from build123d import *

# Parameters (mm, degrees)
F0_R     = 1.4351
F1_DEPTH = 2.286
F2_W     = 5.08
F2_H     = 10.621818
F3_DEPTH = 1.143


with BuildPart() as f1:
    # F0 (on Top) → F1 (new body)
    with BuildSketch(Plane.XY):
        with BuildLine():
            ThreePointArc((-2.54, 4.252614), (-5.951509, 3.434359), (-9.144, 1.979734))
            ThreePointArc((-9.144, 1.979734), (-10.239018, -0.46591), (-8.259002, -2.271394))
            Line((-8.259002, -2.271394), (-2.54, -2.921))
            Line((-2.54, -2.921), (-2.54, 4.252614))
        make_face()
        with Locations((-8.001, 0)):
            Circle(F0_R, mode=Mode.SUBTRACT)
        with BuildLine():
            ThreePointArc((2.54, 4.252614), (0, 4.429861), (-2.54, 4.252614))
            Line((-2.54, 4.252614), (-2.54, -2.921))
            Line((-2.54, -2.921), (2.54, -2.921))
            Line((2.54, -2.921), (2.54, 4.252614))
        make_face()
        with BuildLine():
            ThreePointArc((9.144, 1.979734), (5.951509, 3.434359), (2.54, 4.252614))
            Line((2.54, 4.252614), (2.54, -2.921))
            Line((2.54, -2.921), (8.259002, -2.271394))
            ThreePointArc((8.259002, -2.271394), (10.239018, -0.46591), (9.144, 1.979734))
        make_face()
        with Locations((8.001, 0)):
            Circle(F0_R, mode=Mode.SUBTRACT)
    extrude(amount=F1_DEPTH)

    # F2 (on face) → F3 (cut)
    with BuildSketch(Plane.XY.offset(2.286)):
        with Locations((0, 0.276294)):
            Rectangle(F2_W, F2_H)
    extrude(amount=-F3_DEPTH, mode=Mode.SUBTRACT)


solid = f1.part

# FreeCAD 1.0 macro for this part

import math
import FreeCAD as App
import Part
import Sketcher
Q = App.Units.Quantity

doc = App.newDocument("Part")
params = doc.addObject("Spreadsheet::Sheet", "Params")
for row, (alias, value) in enumerate([
    ("sketch1_radius", "0.09 in"),
    ("sketch1_radius2", "0.09 in"),
    ("sketch1_diameter", "0.113 in"),
    ("sketch1_diameter2", "0.113 in"),
    ("sketch1_width", "0.2 in"),
    ("pad1_length", "0.09 in"),
    ("sketch2_width", "0.2 in"),
    ("pocket1_length", "0.045 in"),
], start=1):
    params.set(f"A{row}", alias)
    params.set(f"B{row}", "=" + value)
    params.setAlias(f"B{row}", alias)

body = doc.addObject("PartDesign::Body", "Body")

sketch1 = doc.addObject("Sketcher::SketchObject", "Sketch")
body.addObject(sketch1)
sketch1.AttachmentSupport = (doc.XY_Plane, [""])
sketch1.MapMode = "FlatFace"
sketch1.addGeometry(Part.ArcOfCircle(Part.Circle(App.Vector(0.00001, -13.858166, 0), App.Vector(0, 0, 1), 18.288029), math.radians(97.983577), math.radians(119.999986)), False)
sketch1.addGeometry(Part.ArcOfCircle(Part.Circle(App.Vector(-8.001, 0, 0), App.Vector(0, 0, 1), 2.286), math.radians(119.999994), math.radians(263.519697)), False)
sketch1.addGeometry(Part.LineSegment(App.Vector(-8.259002, -2.271394, 0), App.Vector(-2.54, -2.921, 0)), False)
sketch1.addGeometry(Part.LineSegment(App.Vector(-2.54, -2.921, 0), App.Vector(2.54, -2.921, 0)), False)
sketch1.addGeometry(Part.LineSegment(App.Vector(2.54, -2.921, 0), App.Vector(8.259002, -2.271394, 0)), False)
sketch1.addGeometry(Part.ArcOfCircle(Part.Circle(App.Vector(8.001, 0, 0), App.Vector(0, 0, 1), 2.286), math.radians(-83.519697), math.radians(60.000006)), False)
sketch1.addGeometry(Part.ArcOfCircle(Part.Circle(App.Vector(-0.00001, -13.858166, 0), App.Vector(0, 0, 1), 18.288029), math.radians(60.000014), math.radians(82.016423)), False)
sketch1.addGeometry(Part.ArcOfCircle(Part.Circle(App.Vector(0, -13.858224, 0), App.Vector(0, 0, 1), 18.288085), math.radians(82.016481), math.radians(97.983519)), False)
sketch1.addGeometry(Part.Circle(App.Vector(-8.001, 0, 0), App.Vector(0, 0, 1), 1.4351), False)
sketch1.addGeometry(Part.Circle(App.Vector(8.001, 0, 0), App.Vector(0, 0, 1), 1.4351), False)
sketch1.addConstraint(Sketcher.Constraint("Coincident", 0, 2, 1, 1))
sketch1.addConstraint(Sketcher.Constraint("Coincident", 1, 2, 2, 1))
sketch1.addConstraint(Sketcher.Constraint("Coincident", 2, 2, 3, 1))
sketch1.addConstraint(Sketcher.Constraint("Coincident", 3, 2, 4, 1))
sketch1.addConstraint(Sketcher.Constraint("Coincident", 4, 2, 5, 1))
sketch1.addConstraint(Sketcher.Constraint("Coincident", 5, 2, 6, 1))
sketch1.addConstraint(Sketcher.Constraint("Coincident", 6, 2, 7, 1))
sketch1.addConstraint(Sketcher.Constraint("Coincident", 7, 2, 0, 1))
sketch1.addConstraint(Sketcher.Constraint("Horizontal", 3))
sketch1.addConstraint(Sketcher.Constraint("Coincident", 8, 3, 1, 3))
sketch1.addConstraint(Sketcher.Constraint("Coincident", 9, 3, 5, 3))
sketch1.addConstraint(Sketcher.Constraint("PointOnObject", 1, 3, -1))
sketch1.addConstraint(Sketcher.Constraint("PointOnObject", 5, 3, -1))
sketch1.addConstraint(Sketcher.Constraint("PointOnObject", 7, 3, -2))
sketch1.addConstraint(Sketcher.Constraint("Radius", 1, Q("0.09 in")))
sketch1.addConstraint(Sketcher.Constraint("Radius", 5, Q("0.09 in")))
sketch1.addConstraint(Sketcher.Constraint("Diameter", 8, Q("0.113 in")))
sketch1.addConstraint(Sketcher.Constraint("Diameter", 9, Q("0.113 in")))
sketch1.addConstraint(Sketcher.Constraint("DistanceX", 3, 1, 3, 2, Q("0.2 in")))
sketch1.addConstraint(Sketcher.Constraint("DistanceX", 2, 2, -1, 1, Q("0.1 in")))
sketch1.addConstraint(Sketcher.Constraint("DistanceX", -1, 1, 6, 2, Q("0.1 in")))
sketch1.addConstraint(Sketcher.Constraint("DistanceX", 7, 2, -1, 1, Q("0.1 in")))
sketch1.addConstraint(Sketcher.Constraint("DistanceX", 0, 2, -1, 1, Q("0.36 in")))
sketch1.addConstraint(Sketcher.Constraint("DistanceX", -1, 1, 5, 2, Q("0.36 in")))
sketch1.addConstraint(Sketcher.Constraint("DistanceX", 1, 3, 5, 3, Q("0.63 in")))
sketch1.addConstraint(Sketcher.Constraint("DistanceX", 1, 3, -1, 1, Q("0.315 in")))
sketch1.addConstraint(Sketcher.Constraint("DistanceY", 2, 2, -1, 1, Q("0.115 in")))
sketch1.addConstraint(Sketcher.Constraint("Radius", 0, Q("18.288029 mm")))
sketch1.addConstraint(Sketcher.Constraint("Radius", 6, Q("18.288029 mm")))
sketch1.addConstraint(Sketcher.Constraint("Radius", 7, Q("18.288085 mm")))
sketch1.addConstraint(Sketcher.Constraint("DistanceX", 1, 2, -1, 1, Q("8.259002 mm")))
sketch1.addConstraint(Sketcher.Constraint("DistanceY", 6, 3, 0, 2, Q("15.8379 mm")))
sketch1.addConstraint(Sketcher.Constraint("DistanceX", 5, 3, 4, 2, Q("0.258002 mm")))
sketch1.setExpression("Constraints[14]", "Params.sketch1_radius")
sketch1.setExpression("Constraints[15]", "Params.sketch1_radius2")
sketch1.setExpression("Constraints[16]", "Params.sketch1_diameter")
sketch1.setExpression("Constraints[17]", "Params.sketch1_diameter2")
sketch1.setExpression("Constraints[18]", "Params.sketch1_width")
pad1 = doc.addObject("PartDesign::Pad", "Pad")
body.addObject(pad1)
pad1.Profile = sketch1
pad1.setExpression("Length", "Params.pad1_length")

sketch2 = doc.addObject("Sketcher::SketchObject", "Sketch001")
body.addObject(sketch2)
sketch2.AttachmentSupport = (doc.XY_Plane, [""])
sketch2.MapMode = "FlatFace"
sketch2.AttachmentOffset = App.Placement(App.Vector(0, 0, 0.09 * 25.4), App.Rotation())
sketch2.addGeometry(Part.LineSegment(App.Vector(-3, 6, 0), App.Vector(-3, -5, 0)), False)
sketch2.addGeometry(Part.LineSegment(App.Vector(-3, -5, 0), App.Vector(3, -5, 0)), False)
sketch2.addGeometry(Part.LineSegment(App.Vector(3, -5, 0), App.Vector(3, 6, 0)), False)
sketch2.addGeometry(Part.LineSegment(App.Vector(3, 6, 0), App.Vector(-3, 6, 0)), False)
sketch2.addConstraint(Sketcher.Constraint("Coincident", 0, 2, 1, 1))
sketch2.addConstraint(Sketcher.Constraint("Coincident", 1, 2, 2, 1))
sketch2.addConstraint(Sketcher.Constraint("Coincident", 2, 2, 3, 1))
sketch2.addConstraint(Sketcher.Constraint("Coincident", 3, 2, 0, 1))
sketch2.addConstraint(Sketcher.Constraint("Vertical", 0))
sketch2.addConstraint(Sketcher.Constraint("Horizontal", 1))
sketch2.addConstraint(Sketcher.Constraint("Vertical", 2))
sketch2.addConstraint(Sketcher.Constraint("Horizontal", 3))
sketch2.addConstraint(Sketcher.Constraint("DistanceX", 1, 1, 1, 2, Q("0.2 in")))
sketch2.addConstraint(Sketcher.Constraint("DistanceX", 0, 2, -1, 1, Q("0.1 in")))
sketch2.addConstraint(Sketcher.Constraint("DistanceY", 0, 2, 0, 1, Q("10.621818 mm")))
sketch2.addConstraint(Sketcher.Constraint("DistanceY", 0, 2, -1, 1, Q("5.034615 mm")))
sketch2.setExpression("Constraints[8]", "Params.sketch2_width")
pocket1 = doc.addObject("PartDesign::Pocket", "Pocket")
body.addObject(pocket1)
pocket1.Profile = sketch2
pocket1.setExpression("Length", "Params.pocket1_length")

doc.recompute()
